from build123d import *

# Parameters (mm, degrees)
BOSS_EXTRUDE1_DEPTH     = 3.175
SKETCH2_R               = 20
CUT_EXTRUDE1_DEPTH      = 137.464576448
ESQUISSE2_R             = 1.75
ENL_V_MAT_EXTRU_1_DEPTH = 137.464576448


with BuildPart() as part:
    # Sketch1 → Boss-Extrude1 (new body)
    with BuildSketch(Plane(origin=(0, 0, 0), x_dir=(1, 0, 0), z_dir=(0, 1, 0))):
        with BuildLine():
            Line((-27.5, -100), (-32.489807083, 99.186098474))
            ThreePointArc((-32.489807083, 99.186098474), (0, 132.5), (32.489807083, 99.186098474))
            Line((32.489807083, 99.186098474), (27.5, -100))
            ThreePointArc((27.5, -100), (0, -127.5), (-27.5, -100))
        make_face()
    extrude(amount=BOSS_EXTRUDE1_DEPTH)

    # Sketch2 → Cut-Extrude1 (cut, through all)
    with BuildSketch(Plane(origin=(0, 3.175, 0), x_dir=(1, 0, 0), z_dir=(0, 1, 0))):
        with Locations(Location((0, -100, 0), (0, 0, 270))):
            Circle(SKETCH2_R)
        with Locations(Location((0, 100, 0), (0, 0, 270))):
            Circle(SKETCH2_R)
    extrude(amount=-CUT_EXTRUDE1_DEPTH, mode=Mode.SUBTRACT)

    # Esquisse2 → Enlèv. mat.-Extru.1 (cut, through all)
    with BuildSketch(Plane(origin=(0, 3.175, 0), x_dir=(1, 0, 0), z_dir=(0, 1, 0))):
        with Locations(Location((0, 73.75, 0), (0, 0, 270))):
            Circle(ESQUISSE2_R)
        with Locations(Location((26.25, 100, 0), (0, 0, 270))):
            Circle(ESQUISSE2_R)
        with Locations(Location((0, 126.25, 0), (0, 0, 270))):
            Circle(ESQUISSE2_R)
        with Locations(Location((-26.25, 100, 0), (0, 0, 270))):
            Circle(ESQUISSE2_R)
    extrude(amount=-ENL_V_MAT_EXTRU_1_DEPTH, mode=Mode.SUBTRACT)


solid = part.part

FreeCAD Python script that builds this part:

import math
import FreeCAD as App
import Part
import Sketcher
from FreeCAD import Vector
Q = App.Units.Quantity

doc = App.newDocument("Part")
body = doc.addObject("PartDesign::Body", "Body")

# Sketch on XZ plane
sketch1 = body.newObject("Sketcher::SketchObject", "Sketch")
sketch1.AttachmentSupport = (doc.getObject("XZ_Plane"), [""])
sketch1.MapMode = "FlatFace"
sketch1.addGeometry(Part.LineSegment(Vector(-32, -99, 0), Vector(-28, 100, 0)), False)
sketch1.addGeometry(Part.ArcOfCircle(Part.Circle(Vector(0, 100, 0), Vector(0, 0, 1), 28), math.radians(0), math.radians(180)), False)
sketch1.addGeometry(Part.LineSegment(Vector(28, 100, 0), Vector(32, -99, 0)), False)
sketch1.addGeometry(Part.ArcOfCircle(Part.Circle(Vector(0, -100, 0), Vector(0, 0, 1), 32), math.radians(179), math.radians(361)), False)
sketch1.addConstraint(Sketcher.Constraint("Coincident", 0, 2, 1, 2))
sketch1.addConstraint(Sketcher.Constraint("Coincident", 1, 1, 2, 1))
sketch1.addConstraint(Sketcher.Constraint("Tangent", 2, 2, 3, 2))
sketch1.addConstraint(Sketcher.Constraint("Tangent", 3, 1, 0, 1))
sketch1.addConstraint(Sketcher.Constraint("Symmetric", 1, 3, 3, 3, -1, 1))
sketch1.addConstraint(Sketcher.Constraint("Symmetric", 0, 2, 1, 1, -2))
sketch1.addConstraint(Sketcher.Constraint("Horizontal", 1, 3, 0, 2))
sketch1.addConstraint(Sketcher.Constraint("Radius", 1, Q("27.5 mm")))
sketch1.addConstraint(Sketcher.Constraint("Radius", 3, Q("32.5 mm")))
sketch1.addConstraint(Sketcher.Constraint("DistanceY", -1, 1, 1, 3, Q("100 mm")))
pad1 = body.newObject("PartDesign::Pad", "Pad")
pad1.Profile = sketch1
pad1.Length = 3.175
pad1.Reversed = True

# Sketch on XZ plane
sketch2 = body.newObject("Sketcher::SketchObject", "Sketch001")
sketch2.AttachmentSupport = (doc.getObject("XZ_Plane"), [""])
sketch2.MapMode = "FlatFace"
sketch2.AttachmentOffset = App.Placement(Vector(0, 0, -3.175), App.Rotation())
sketch2.addGeometry(Part.Circle(Vector(0, 100, 0), Vector(0, 0, 1), 20), False)
sketch2.addGeometry(Part.Circle(Vector(0, -100, 0), Vector(0, 0, 1), 20), False)
sketch2.addConstraint(Sketcher.Constraint("Equal", 0, 1))
sketch2.addConstraint(Sketcher.Constraint("Symmetric", 0, 3, 1, 3, -1, 1))
sketch2.addConstraint(Sketcher.Constraint("PointOnObject", 0, 3, -2))
sketch2.addConstraint(Sketcher.Constraint("Diameter", 0, Q("40 mm")))
sketch2.addConstraint(Sketcher.Constraint("DistanceY", -1, 1, 0, 3, Q("100 mm")))
pocket1 = body.newObject("PartDesign::Pocket", "Pocket")
pocket1.Profile = sketch2
pocket1.Type = "ThroughAll"
pocket1.Reversed = True

# Sketch on XZ plane
sketch3 = body.newObject("Sketcher::SketchObject", "Sketch002")
sketch3.AttachmentSupport = (doc.getObject("XZ_Plane"), [""])
sketch3.MapMode = "FlatFace"
sketch3.AttachmentOffset = App.Placement(Vector(0, 0, -3.175), App.Rotation())
sketch3.addGeometry(Part.Circle(Vector(0, -73.8, 0), Vector(0, 0, 1), 1.8), False)
sketch3.addGeometry(Part.Circle(Vector(26.2, -100, 0), Vector(0, 0, 1), 1.8), False)
sketch3.addGeometry(Part.Circle(Vector(0, -126.2, 0), Vector(0, 0, 1), 1.8), False)
sketch3.addGeometry(Part.Circle(Vector(-26.2, -100, 0), Vector(0, 0, 1), 1.8), False)
sketch3.addConstraint(Sketcher.Constraint("Equal", 0, 1))
sketch3.addConstraint(Sketcher.Constraint("Equal", 1, 2))
sketch3.addConstraint(Sketcher.Constraint("Equal", 2, 3))
sketch3.addConstraint(Sketcher.Constraint("Symmetric", 1, 3, 3, 3, -2))
sketch3.addConstraint(Sketcher.Constraint("PointOnObject", 0, 3, -2))
sketch3.addConstraint(Sketcher.Constraint("PointOnObject", 2, 3, -2))
sketch3.addConstraint(Sketcher.Constraint("Diameter", 0, Q("3.5 mm")))
sketch3.addConstraint(Sketcher.Constraint("DistanceY", 1, 3, -1, 1, Q("100 mm")))
sketch3.addConstraint(Sketcher.Constraint("DistanceY", 2, 3, 0, 3, Q("52.5 mm")))
sketch3.addConstraint(Sketcher.Constraint("DistanceX", 3, 3, 1, 3, Q("52.5 mm")))
sketch3.addConstraint(Sketcher.Constraint("DistanceY", 0, 3, -1, 1, Q("73.75 mm")))
pocket2 = body.newObject("PartDesign::Pocket", "Pocket001")
pocket2.Profile = sketch3
pocket2.Type = "ThroughAll"
pocket2.Reversed = True

doc.recompute()
